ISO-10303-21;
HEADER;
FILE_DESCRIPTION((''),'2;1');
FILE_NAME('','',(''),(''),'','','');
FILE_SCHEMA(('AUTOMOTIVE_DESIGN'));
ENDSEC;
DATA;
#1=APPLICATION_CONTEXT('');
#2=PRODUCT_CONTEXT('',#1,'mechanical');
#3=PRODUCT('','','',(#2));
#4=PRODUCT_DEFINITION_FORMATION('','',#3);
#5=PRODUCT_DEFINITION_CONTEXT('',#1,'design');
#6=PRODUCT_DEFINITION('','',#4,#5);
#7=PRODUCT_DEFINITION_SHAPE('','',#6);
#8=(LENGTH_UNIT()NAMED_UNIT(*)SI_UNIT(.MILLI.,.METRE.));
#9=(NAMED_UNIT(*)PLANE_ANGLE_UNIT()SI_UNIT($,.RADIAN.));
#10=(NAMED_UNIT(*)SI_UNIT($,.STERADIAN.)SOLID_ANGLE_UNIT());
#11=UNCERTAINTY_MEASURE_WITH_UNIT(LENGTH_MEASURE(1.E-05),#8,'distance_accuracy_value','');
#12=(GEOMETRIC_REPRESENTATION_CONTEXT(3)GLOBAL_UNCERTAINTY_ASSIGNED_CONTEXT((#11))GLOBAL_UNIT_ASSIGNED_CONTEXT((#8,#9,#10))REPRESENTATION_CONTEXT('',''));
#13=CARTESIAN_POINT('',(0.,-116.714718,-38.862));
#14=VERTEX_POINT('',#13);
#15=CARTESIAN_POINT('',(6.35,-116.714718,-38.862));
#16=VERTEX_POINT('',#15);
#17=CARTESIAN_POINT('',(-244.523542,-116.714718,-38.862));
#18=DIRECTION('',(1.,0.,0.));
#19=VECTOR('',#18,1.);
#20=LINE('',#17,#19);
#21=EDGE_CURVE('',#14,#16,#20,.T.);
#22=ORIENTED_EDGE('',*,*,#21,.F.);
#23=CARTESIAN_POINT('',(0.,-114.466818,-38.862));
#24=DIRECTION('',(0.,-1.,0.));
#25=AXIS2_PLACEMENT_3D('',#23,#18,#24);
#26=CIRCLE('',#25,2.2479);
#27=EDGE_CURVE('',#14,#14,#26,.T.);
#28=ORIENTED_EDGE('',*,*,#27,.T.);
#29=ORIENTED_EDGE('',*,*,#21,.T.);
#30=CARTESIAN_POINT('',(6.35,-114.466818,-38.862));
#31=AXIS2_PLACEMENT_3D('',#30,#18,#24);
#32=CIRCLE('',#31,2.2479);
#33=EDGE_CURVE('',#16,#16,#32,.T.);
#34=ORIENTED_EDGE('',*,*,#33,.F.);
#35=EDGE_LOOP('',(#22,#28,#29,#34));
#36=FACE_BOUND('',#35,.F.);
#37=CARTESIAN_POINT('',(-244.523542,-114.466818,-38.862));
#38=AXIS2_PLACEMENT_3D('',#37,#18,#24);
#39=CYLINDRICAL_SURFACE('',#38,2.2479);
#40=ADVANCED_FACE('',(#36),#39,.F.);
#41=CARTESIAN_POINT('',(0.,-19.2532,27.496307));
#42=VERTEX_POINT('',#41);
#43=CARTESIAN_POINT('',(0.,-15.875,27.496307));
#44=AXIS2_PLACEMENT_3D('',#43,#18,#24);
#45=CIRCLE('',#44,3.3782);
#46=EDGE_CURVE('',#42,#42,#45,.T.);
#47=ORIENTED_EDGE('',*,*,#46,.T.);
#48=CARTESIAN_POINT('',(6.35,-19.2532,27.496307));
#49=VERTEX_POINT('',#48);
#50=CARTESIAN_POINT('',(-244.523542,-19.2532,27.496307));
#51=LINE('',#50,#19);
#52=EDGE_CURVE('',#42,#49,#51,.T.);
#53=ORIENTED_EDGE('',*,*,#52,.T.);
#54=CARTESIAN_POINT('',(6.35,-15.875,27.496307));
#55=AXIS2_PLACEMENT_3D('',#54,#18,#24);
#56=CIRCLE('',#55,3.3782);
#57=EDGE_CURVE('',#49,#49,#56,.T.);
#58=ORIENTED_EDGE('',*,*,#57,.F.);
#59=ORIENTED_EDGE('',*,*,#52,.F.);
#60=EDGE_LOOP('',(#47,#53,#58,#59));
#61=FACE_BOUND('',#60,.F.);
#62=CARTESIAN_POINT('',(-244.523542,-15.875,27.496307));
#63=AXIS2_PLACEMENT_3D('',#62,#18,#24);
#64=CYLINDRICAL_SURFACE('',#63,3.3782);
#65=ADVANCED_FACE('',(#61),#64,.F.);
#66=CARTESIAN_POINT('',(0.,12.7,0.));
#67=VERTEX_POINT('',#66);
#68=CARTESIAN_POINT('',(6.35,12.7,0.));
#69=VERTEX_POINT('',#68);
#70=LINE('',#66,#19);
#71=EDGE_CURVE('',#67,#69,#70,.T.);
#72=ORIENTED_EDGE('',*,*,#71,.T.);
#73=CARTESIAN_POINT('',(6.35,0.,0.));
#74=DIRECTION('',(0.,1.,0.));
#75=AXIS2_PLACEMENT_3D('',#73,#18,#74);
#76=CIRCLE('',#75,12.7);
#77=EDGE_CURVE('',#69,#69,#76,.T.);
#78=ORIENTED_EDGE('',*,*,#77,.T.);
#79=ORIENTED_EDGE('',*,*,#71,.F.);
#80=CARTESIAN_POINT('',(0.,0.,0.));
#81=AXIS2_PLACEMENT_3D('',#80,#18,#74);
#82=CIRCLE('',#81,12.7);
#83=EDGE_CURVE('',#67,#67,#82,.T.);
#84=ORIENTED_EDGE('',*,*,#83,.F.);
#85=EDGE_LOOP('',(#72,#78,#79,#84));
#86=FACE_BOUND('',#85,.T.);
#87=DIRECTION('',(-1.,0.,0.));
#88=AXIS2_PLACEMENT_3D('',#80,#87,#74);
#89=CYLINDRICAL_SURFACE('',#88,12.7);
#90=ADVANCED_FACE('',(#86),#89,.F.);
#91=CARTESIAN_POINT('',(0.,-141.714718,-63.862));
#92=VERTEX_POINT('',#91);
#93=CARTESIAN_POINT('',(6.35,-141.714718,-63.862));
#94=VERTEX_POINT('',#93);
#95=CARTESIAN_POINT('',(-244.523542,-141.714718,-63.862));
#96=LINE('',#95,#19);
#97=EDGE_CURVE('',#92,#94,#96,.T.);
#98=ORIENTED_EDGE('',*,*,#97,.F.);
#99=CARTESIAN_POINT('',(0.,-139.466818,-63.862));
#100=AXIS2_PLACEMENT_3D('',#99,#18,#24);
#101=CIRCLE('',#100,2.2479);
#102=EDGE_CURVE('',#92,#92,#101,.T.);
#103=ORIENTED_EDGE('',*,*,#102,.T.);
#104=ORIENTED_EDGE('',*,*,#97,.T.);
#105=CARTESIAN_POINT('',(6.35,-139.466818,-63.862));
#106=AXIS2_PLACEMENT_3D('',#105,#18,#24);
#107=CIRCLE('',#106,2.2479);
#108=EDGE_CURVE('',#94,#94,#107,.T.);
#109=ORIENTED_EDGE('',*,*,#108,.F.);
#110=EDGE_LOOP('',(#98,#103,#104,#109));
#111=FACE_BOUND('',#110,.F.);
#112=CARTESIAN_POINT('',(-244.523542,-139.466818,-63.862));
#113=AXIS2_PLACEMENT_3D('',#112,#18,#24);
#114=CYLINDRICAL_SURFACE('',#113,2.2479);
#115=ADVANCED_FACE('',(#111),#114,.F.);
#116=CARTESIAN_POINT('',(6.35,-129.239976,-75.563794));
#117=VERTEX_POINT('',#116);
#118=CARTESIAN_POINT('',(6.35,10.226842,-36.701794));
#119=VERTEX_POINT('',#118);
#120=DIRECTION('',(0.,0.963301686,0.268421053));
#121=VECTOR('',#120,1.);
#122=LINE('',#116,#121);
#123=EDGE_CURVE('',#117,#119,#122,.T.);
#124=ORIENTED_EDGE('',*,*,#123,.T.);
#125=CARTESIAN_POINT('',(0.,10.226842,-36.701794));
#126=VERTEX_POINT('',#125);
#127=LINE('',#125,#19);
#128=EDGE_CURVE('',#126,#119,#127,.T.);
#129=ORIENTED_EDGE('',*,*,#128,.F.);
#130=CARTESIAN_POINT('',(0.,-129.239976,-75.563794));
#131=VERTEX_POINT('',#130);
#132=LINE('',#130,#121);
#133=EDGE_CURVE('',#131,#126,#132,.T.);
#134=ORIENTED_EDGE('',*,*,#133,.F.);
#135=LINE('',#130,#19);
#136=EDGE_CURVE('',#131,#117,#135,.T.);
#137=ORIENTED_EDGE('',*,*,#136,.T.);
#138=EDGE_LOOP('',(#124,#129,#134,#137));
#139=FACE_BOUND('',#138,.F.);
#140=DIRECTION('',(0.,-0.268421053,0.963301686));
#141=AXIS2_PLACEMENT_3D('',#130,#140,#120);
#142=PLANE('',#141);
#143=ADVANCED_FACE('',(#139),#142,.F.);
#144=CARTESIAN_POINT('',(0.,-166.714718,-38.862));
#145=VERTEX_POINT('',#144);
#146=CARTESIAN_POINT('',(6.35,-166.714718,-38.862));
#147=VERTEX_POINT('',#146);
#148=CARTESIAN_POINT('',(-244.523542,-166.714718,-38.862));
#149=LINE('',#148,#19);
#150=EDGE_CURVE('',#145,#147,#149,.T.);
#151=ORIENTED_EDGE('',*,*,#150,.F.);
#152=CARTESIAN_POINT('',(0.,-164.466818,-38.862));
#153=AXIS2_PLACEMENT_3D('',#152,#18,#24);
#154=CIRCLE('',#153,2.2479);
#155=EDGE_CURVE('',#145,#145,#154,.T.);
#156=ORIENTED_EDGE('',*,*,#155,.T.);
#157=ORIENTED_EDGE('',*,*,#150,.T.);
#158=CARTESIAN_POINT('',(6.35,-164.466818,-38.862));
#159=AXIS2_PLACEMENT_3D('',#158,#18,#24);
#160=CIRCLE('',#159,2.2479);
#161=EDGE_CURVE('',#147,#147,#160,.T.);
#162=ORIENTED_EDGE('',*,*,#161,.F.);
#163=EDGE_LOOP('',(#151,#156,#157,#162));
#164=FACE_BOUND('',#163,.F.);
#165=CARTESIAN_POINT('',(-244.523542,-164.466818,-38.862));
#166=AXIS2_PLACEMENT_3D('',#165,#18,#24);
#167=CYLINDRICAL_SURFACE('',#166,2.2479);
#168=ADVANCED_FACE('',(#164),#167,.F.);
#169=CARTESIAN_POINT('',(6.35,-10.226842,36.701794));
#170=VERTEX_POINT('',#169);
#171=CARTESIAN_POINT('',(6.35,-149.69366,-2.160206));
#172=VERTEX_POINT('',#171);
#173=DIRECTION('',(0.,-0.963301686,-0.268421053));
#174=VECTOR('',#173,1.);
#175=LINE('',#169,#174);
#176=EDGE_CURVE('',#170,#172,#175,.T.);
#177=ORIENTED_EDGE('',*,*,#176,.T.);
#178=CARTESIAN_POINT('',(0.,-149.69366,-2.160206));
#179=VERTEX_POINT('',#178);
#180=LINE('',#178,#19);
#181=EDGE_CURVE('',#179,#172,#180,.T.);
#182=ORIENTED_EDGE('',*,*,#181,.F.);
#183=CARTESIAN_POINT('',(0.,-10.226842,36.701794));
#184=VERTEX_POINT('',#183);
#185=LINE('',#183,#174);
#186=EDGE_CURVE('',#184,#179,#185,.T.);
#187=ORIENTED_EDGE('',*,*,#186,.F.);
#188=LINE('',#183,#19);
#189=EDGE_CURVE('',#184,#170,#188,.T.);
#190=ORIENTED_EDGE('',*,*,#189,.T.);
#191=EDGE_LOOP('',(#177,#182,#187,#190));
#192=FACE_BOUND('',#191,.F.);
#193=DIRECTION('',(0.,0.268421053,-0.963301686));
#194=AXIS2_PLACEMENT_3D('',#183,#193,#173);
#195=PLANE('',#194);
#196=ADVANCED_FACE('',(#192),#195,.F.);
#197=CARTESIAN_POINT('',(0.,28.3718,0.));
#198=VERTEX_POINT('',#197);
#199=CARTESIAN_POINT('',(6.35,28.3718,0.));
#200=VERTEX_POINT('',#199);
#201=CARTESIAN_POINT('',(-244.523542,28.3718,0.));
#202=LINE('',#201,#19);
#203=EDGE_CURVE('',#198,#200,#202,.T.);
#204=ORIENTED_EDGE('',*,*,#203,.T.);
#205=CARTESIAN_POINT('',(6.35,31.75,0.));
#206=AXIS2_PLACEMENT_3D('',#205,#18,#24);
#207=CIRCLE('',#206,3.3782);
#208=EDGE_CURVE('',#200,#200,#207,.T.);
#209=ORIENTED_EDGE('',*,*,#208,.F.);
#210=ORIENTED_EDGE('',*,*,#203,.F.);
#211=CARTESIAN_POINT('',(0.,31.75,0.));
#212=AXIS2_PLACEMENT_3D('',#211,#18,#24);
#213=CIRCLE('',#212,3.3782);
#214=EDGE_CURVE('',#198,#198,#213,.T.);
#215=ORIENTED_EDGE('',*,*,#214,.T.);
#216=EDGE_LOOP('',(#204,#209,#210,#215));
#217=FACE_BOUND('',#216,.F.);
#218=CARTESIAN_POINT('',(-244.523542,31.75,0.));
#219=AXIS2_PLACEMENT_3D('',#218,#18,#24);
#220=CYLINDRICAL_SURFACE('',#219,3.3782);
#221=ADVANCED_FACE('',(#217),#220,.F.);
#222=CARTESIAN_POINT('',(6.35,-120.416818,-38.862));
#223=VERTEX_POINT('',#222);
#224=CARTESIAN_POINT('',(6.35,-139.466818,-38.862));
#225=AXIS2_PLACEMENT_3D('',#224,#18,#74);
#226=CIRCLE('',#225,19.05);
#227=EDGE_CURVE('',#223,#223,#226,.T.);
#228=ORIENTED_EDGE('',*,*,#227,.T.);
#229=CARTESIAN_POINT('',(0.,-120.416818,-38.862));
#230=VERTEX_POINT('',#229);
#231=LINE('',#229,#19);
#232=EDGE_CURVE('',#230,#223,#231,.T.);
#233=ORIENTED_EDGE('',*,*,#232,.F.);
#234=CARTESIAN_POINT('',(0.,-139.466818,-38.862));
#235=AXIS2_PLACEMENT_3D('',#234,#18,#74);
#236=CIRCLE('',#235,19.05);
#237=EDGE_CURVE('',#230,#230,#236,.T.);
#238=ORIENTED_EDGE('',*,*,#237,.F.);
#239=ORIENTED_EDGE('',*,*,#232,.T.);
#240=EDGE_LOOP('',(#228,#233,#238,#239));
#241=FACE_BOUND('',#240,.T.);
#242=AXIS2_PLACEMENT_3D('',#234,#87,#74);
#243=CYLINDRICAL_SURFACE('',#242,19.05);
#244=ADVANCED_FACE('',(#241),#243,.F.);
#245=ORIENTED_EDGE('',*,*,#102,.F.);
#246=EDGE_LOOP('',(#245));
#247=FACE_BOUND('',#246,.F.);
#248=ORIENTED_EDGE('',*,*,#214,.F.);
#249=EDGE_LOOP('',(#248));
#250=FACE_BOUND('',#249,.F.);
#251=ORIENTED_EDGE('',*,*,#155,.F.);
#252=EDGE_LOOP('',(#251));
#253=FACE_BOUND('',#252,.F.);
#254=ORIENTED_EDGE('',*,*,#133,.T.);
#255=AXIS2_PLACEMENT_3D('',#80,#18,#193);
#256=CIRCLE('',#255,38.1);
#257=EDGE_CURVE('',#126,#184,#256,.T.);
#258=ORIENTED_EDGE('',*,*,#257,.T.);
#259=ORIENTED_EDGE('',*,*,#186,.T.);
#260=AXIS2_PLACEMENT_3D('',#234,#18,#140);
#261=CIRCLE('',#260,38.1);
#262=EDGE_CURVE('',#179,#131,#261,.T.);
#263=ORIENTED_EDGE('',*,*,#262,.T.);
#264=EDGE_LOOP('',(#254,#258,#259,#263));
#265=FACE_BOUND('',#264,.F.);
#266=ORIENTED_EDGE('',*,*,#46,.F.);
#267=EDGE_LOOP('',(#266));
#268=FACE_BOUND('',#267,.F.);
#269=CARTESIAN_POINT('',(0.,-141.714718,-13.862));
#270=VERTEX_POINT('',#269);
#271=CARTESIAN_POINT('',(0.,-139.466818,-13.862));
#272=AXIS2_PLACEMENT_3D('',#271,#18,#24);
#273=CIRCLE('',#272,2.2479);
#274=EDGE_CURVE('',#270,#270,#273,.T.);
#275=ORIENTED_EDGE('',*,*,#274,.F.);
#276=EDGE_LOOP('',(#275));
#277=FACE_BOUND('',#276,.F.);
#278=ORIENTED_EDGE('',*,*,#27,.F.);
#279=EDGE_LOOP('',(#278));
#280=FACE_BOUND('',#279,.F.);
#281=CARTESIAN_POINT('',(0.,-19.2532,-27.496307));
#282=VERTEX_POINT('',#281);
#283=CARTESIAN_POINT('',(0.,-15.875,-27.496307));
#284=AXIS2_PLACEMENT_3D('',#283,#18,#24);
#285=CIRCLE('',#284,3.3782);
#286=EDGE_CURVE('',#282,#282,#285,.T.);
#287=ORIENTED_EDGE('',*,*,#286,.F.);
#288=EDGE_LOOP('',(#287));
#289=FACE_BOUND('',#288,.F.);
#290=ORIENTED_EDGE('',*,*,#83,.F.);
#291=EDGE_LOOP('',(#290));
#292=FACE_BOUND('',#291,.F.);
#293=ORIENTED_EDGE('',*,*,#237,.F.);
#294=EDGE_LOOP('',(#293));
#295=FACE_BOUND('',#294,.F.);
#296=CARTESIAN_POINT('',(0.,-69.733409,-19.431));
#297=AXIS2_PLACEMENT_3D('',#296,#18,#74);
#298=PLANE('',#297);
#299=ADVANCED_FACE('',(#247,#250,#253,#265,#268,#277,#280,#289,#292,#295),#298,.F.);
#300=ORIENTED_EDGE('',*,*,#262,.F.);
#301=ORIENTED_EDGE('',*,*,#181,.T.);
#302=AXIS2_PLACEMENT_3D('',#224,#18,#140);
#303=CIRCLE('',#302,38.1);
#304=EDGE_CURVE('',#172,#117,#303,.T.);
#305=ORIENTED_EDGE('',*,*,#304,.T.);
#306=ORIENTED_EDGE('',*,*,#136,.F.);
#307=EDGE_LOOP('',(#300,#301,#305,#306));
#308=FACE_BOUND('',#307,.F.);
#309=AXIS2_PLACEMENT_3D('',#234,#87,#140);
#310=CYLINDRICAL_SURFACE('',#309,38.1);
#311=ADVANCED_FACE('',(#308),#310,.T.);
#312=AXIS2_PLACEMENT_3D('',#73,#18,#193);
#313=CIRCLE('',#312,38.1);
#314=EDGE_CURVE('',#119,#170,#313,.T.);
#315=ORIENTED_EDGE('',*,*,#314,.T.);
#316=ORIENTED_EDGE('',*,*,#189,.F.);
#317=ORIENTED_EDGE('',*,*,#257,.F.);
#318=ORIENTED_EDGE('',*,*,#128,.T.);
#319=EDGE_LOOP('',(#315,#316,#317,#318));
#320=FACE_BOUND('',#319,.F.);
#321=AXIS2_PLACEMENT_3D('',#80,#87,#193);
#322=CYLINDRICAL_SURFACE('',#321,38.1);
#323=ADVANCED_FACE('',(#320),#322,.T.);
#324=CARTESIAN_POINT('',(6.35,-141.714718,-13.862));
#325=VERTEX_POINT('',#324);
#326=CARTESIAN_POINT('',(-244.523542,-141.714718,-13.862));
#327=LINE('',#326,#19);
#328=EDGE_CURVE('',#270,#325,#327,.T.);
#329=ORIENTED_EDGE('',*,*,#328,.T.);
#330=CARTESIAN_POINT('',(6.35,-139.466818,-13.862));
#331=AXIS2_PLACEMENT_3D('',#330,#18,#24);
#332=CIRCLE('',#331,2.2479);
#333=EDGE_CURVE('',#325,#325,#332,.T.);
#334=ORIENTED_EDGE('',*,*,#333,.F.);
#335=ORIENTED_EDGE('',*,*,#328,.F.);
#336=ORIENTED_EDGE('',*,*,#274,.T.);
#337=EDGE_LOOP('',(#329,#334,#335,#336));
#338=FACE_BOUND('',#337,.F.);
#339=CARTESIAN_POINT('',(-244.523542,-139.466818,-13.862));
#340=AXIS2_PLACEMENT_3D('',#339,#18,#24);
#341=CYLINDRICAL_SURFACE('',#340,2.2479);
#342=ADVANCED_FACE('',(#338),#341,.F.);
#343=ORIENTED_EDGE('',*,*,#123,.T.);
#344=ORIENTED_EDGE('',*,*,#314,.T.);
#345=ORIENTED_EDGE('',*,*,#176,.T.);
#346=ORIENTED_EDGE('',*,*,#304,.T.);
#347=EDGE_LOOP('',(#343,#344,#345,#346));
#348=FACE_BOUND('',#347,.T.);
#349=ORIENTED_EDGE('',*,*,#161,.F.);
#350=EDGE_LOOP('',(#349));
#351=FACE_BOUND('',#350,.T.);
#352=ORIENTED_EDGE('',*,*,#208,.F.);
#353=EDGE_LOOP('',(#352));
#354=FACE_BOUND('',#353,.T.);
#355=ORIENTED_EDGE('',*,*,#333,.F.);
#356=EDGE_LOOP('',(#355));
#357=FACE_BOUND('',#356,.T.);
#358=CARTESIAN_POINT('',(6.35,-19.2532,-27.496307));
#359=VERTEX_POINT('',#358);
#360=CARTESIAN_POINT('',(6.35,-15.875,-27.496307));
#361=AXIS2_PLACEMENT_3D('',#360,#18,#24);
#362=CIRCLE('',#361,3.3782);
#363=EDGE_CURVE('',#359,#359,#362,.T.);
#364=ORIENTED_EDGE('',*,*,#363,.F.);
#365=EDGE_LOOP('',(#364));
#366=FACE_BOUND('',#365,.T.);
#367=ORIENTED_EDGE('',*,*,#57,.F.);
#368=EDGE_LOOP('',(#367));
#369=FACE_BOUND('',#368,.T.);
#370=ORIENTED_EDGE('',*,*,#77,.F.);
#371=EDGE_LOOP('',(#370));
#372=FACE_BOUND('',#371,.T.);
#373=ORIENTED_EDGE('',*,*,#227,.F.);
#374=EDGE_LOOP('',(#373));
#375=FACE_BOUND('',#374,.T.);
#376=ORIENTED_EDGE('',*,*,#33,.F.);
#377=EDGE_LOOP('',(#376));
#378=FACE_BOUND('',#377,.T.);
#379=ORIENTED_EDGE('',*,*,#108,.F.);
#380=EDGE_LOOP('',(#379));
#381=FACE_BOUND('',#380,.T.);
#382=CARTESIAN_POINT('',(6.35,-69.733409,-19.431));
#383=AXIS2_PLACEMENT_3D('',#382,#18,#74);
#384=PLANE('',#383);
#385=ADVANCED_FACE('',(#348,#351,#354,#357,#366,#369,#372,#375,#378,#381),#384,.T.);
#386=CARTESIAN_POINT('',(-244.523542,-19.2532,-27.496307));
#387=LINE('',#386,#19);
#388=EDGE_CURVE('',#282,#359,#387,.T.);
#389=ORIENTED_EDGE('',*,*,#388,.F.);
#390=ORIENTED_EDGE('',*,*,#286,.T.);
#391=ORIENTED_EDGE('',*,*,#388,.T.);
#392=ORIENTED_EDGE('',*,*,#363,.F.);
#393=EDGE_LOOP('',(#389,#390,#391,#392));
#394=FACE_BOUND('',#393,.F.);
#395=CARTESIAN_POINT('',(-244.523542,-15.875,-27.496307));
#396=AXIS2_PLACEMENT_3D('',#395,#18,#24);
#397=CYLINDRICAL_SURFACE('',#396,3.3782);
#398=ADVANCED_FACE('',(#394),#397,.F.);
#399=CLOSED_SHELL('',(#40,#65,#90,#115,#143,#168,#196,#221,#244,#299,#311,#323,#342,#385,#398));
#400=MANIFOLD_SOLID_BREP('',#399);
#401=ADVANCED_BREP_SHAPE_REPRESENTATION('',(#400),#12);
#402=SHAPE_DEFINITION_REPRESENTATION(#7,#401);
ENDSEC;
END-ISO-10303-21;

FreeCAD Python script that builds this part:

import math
import FreeCAD as App
import Part
import Sketcher
from FreeCAD import Vector
Q = App.Units.Quantity

doc = App.newDocument("Part")
body = doc.addObject("PartDesign::Body", "Body")

# Sketch on YZ plane
sketch1 = body.newObject("Sketcher::SketchObject", "Sketch")
sketch1.AttachmentSupport = (doc.getObject("YZ_Plane"), [""])
sketch1.MapMode = "FlatFace"
sketch1.addGeometry([
    Part.LineSegment(Vector(-129.239976, -75.563794, 0), Vector(10.226842, -36.701794, 0)),  # 0
    Part.ArcOfCircle(Part.Circle(Vector(0, 0, 0), Vector(0, 0, 1), 38.1), math.radians(-74.429668), math.radians(105.570332)),  # 1
    Part.LineSegment(Vector(-10.226842, 36.701794, 0), Vector(-149.69366, -2.160206, 0)),  # 2
    Part.ArcOfCircle(Part.Circle(Vector(-139.466818, -38.862, 0), Vector(0, 0, 1), 38.1), math.radians(105.570332), math.radians(285.570332)),  # 3
    Part.Circle(Vector(-139.466818, -38.862, 0), Vector(0, 0, 1), 19.05),  # 4
    Part.Circle(Vector(0, 0, 0), Vector(0, 0, 1), 12.7),  # 5
], False)
sketch1.addConstraint([
    Sketcher.Constraint("Tangent", 0, 2, 1, 1),
    Sketcher.Constraint("Tangent", 1, 2, 2, 1),
    Sketcher.Constraint("Tangent", 2, 2, 3, 1),
    Sketcher.Constraint("Tangent", 3, 2, 0, 1),
    Sketcher.Constraint("Coincident", 1, 3, -1, 1),
    Sketcher.Constraint("Coincident", 5, 3, -1, 1),
    Sketcher.Constraint("Coincident", 4, 3, 3, 3),
    Sketcher.Constraint("Equal", 1, 3),
    Sketcher.Constraint("Diameter", 5, Q("1 in")),
    Sketcher.Constraint("Diameter", 4, Q("1.5 in")),
    Sketcher.Constraint("Radius", 1, Q("1.5 in")),
    Sketcher.Constraint("Distance", 0, Q("5.7 in")),
    Sketcher.Constraint("DistanceY", 3, 3, -1, 1, Q("1.53 in")),
])
pad1 = body.newObject("PartDesign::Pad", "Pad")
pad1.Profile = sketch1
pad1.Length = Q("0.25 in")

# Sketch on YZ plane
sketch2 = body.newObject("Sketcher::SketchObject", "Sketch001")
sketch2.AttachmentSupport = (doc.getObject("YZ_Plane"), [""])
sketch2.MapMode = "FlatFace"
sketch2.addGeometry([
    Part.Circle(Vector(-139.466818, -13.862, 0), Vector(0, 0, 1), 2.2479),
    Part.Circle(Vector(-164.466818, -38.862, 0), Vector(0, 0, 1), 2.2479),
    Part.Circle(Vector(-114.466818, -38.862, 0), Vector(0, 0, 1), 2.2479),
    Part.Circle(Vector(-139.466818, -63.862, 0), Vector(0, 0, 1), 2.2479),
], False)
sketch2.addConstraint([
    Sketcher.Constraint("Equal", 0, 1),
    Sketcher.Constraint("Equal", 1, 2),
    Sketcher.Constraint("Equal", 2, 3),
    Sketcher.Constraint("Horizontal", 1, 3, 2, 3),
    Sketcher.Constraint("Vertical", 0, 3, 3, 3),
    Sketcher.Constraint("Diameter", 0, Q("0.177 in")),
    Sketcher.Constraint("DistanceY", 1, 3, -1, 1, Q("1.53 in")),
    Sketcher.Constraint("DistanceY", 0, 3, -1, 1, 13.862),
    Sketcher.Constraint("DistanceY", 3, 3, -1, 1, 63.862),
    Sketcher.Constraint("DistanceX", 1, 3, 0, 3, 25.0),
    Sketcher.Constraint("DistanceX", 0, 3, 2, 3, 25.0),
    Sketcher.Constraint("DistanceX", 0, 3, -1, 1, 139.466818),
])
doc.recompute()
hole = body.newObject("PartDesign::Hole", "Hole")
hole.Profile = sketch2
hole.ThreadType = "None"
hole.Diameter = Q("0.177 in")
hole.DepthType = "ThroughAll"
hole.Reversed = True

# Sketch on YZ plane
sketch3 = body.newObject("Sketcher::SketchObject", "Sketch002")
sketch3.AttachmentSupport = (doc.getObject("YZ_Plane"), [""])
sketch3.MapMode = "FlatFace"
sketch3.addGeometry([
    Part.Circle(Vector(-15.875, 27.496307, 0), Vector(0, 0, 1), 3.3782),
    Part.Circle(Vector(-15.875, -27.496307, 0), Vector(0, 0, 1), 3.3782),
    Part.Circle(Vector(31.75, 0, 0), Vector(0, 0, 1), 3.3782),
], False)
sketch3.addConstraint([
    Sketcher.Constraint("Equal", 0, 1),
    Sketcher.Constraint("Equal", 1, 2),
    Sketcher.Constraint("Symmetric", 0, 3, 1, 3, -1),
    Sketcher.Constraint("PointOnObject", 2, 3, -1),
    Sketcher.Constraint("Diameter", 0, Q("0.266 in")),
    Sketcher.Constraint("DistanceX", -1, 1, 2, 3, Q("1.25 in")),
    Sketcher.Constraint("DistanceX", 0, 3, -1, 1, Q("0.625 in")),
    Sketcher.Constraint("DistanceY", -1, 1, 0, 3, 27.496307),
])
doc.recompute()
hole2 = body.newObject("PartDesign::Hole", "Hole001")
hole2.Profile = sketch3
hole2.ThreadType = "None"
hole2.Diameter = Q("0.266 in")
hole2.DepthType = "ThroughAll"
hole2.Reversed = True

doc.recompute()
